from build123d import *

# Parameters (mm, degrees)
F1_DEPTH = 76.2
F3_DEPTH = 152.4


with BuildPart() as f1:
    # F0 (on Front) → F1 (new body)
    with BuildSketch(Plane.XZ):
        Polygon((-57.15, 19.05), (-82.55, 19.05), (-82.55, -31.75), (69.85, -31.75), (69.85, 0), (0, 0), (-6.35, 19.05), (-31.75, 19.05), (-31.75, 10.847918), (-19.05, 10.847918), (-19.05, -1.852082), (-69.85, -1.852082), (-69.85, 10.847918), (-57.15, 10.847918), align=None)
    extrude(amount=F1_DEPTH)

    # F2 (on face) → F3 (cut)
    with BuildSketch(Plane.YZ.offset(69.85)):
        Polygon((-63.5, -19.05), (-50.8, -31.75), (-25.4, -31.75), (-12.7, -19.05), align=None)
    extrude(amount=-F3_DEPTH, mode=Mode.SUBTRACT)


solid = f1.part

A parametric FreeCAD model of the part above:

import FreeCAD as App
import Part
import Sketcher
Q = App.Units.Quantity

doc = App.newDocument("Part")
params = doc.addObject("Spreadsheet::Sheet", "Params")
for row, (alias, value) in enumerate([
    ("sketch1_width", "1 in"),
    ("sketch1_width2", "6 in"),
    ("sketch1_width3", "2 in"),
    ("sketch1_width4", "0.5 in"),
    ("sketch1_width5", "2.75 in"),
    ("pad1_length", "3 in"),
    ("sketch2_width", "1 in"),
    ("sketch2_width2", "2 in"),
    ("pocket1_length", "6 in"),
], start=1):
    params.set(f"A{row}", alias)
    params.set(f"B{row}", "=" + value)
    params.setAlias(f"B{row}", alias)

body = doc.addObject("PartDesign::Body", "Body")

# Sketch on XZ plane
sketch1 = body.newObject("Sketcher::SketchObject", "Sketch")
sketch1.AttachmentSupport = (doc.getObject("XZ_Plane"), [""])
sketch1.MapMode = "FlatFace"
sketch1.addGeometry([
    Part.LineSegment(App.Vector(-57, 19, 0), App.Vector(-83, 19, 0)),  # 0
    Part.LineSegment(App.Vector(-83, 19, 0), App.Vector(-83, -32, 0)),  # 1
    Part.LineSegment(App.Vector(-83, -32, 0), App.Vector(70, -32, 0)),  # 2
    Part.LineSegment(App.Vector(70, -32, 0), App.Vector(70, 0, 0)),  # 3
    Part.LineSegment(App.Vector(70, 0, 0), App.Vector(0, 0, 0)),  # 4
    Part.LineSegment(App.Vector(0, 0, 0), App.Vector(-6, 19, 0)),  # 5
    Part.LineSegment(App.Vector(-6, 19, 0), App.Vector(-32, 19, 0)),  # 6
    Part.LineSegment(App.Vector(-32, 19, 0), App.Vector(-32, 11, 0)),  # 7
    Part.LineSegment(App.Vector(-32, 11, 0), App.Vector(-19, 11, 0)),  # 8
    Part.LineSegment(App.Vector(-19, 11, 0), App.Vector(-19, -2, 0)),  # 9
    Part.LineSegment(App.Vector(-19, -2, 0), App.Vector(-70, -2, 0)),  # 10
    Part.LineSegment(App.Vector(-70, -2, 0), App.Vector(-70, 11, 0)),  # 11
    Part.LineSegment(App.Vector(-70, 11, 0), App.Vector(-57, 11, 0)),  # 12
    Part.LineSegment(App.Vector(-57, 11, 0), App.Vector(-57, 19, 0)),  # 13
], False)
sketch1.addConstraint([
    Sketcher.Constraint("Coincident", 0, 2, 1, 1),
    Sketcher.Constraint("Coincident", 1, 2, 2, 1),
    Sketcher.Constraint("Coincident", 2, 2, 3, 1),
    Sketcher.Constraint("Coincident", 3, 2, 4, 1),
    Sketcher.Constraint("Coincident", 4, 2, 5, 1),
    Sketcher.Constraint("Coincident", 5, 2, 6, 1),
    Sketcher.Constraint("Coincident", 6, 2, 7, 1),
    Sketcher.Constraint("Coincident", 7, 2, 8, 1),
    Sketcher.Constraint("Coincident", 8, 2, 9, 1),
    Sketcher.Constraint("Coincident", 9, 2, 10, 1),
    Sketcher.Constraint("Coincident", 10, 2, 11, 1),
    Sketcher.Constraint("Coincident", 11, 2, 12, 1),
    Sketcher.Constraint("Coincident", 12, 2, 13, 1),
    Sketcher.Constraint("Coincident", 13, 2, 0, 1),
    Sketcher.Constraint("Horizontal", 0),
    Sketcher.Constraint("Vertical", 1),
    Sketcher.Constraint("Horizontal", 2),
    Sketcher.Constraint("Vertical", 3),
    Sketcher.Constraint("Horizontal", 4),
    Sketcher.Constraint("Horizontal", 6),
    Sketcher.Constraint("Vertical", 7),
    Sketcher.Constraint("Horizontal", 8),
    Sketcher.Constraint("Vertical", 9),
    Sketcher.Constraint("Horizontal", 10),
    Sketcher.Constraint("Vertical", 11),
    Sketcher.Constraint("Horizontal", 12),
    Sketcher.Constraint("Vertical", 13),
    Sketcher.Constraint("Coincident", 4, 2, -1, 1),
    Sketcher.Constraint("Horizontal", 0, 2, 5, 2),
    Sketcher.Constraint("Horizontal", 8, 2, 11, 2),
    Sketcher.Constraint("Equal", 0, 6),
    Sketcher.Constraint("Equal", 8, 12),
    Sketcher.Constraint("Equal", 10, 1),
    Sketcher.Constraint("Equal", 12, 9),
    Sketcher.Constraint("DistanceX", 0, 2, 0, 1, Q("1 in")),
    Sketcher.Constraint("DistanceX", 2, 1, 2, 2, Q("6 in")),
    Sketcher.Constraint("DistanceX", 10, 2, 10, 1, Q("2 in")),
    Sketcher.Constraint("DistanceX", 8, 1, 8, 2, Q("0.5 in")),
    Sketcher.Constraint("DistanceX", 4, 2, 4, 1, Q("2.75 in")),
    Sketcher.Constraint("DistanceY", 3, 1, 3, 2, Q("1.25 in")),
    Sketcher.Constraint("DistanceY", 7, 2, 7, 1, 8.202082),
])
sketch1.setExpression("Constraints[34]", "Params.sketch1_width")
sketch1.setExpression("Constraints[35]", "Params.sketch1_width2")
sketch1.setExpression("Constraints[36]", "Params.sketch1_width3")
sketch1.setExpression("Constraints[37]", "Params.sketch1_width4")
sketch1.setExpression("Constraints[38]", "Params.sketch1_width5")
pad1 = body.newObject("PartDesign::Pad", "Pad")
pad1.Profile = sketch1
pad1.setExpression("Length", "Params.pad1_length")

# Sketch on YZ plane
sketch2 = body.newObject("Sketcher::SketchObject", "Sketch001")
sketch2.AttachmentSupport = (doc.getObject("YZ_Plane"), [""])
sketch2.MapMode = "FlatFace"
sketch2.AttachmentOffset = App.Placement(App.Vector(0, 0, 2.75 * 25.4), App.Rotation())
sketch2.addGeometry([
    Part.LineSegment(App.Vector(-64, -19, 0), App.Vector(-51, -32, 0)),
    Part.LineSegment(App.Vector(-51, -32, 0), App.Vector(-25, -32, 0)),
    Part.LineSegment(App.Vector(-25, -32, 0), App.Vector(-13, -19, 0)),
    Part.LineSegment(App.Vector(-13, -19, 0), App.Vector(-64, -19, 0)),
], False)
sketch2.addConstraint([
    Sketcher.Constraint("Coincident", 0, 2, 1, 1),
    Sketcher.Constraint("Coincident", 1, 2, 2, 1),
    Sketcher.Constraint("Coincident", 2, 2, 3, 1),
    Sketcher.Constraint("Coincident", 3, 2, 0, 1),
    Sketcher.Constraint("Horizontal", 1),
    Sketcher.Constraint("Horizontal", 3),
    Sketcher.Constraint("Perpendicular", 0, 2),
    Sketcher.Constraint("Equal", 0, 2),
    Sketcher.Constraint("DistanceX", 1, 1, 1, 2, Q("1 in")),
    Sketcher.Constraint("DistanceX", 3, 2, 3, 1, Q("2 in")),
    Sketcher.Constraint("DistanceX", 0, 2, -1, 1, Q("2 in")),
    Sketcher.Constraint("DistanceY", 0, 2, -1, 1, Q("1.25 in")),
])
sketch2.setExpression("Constraints[8]", "Params.sketch2_width")
sketch2.setExpression("Constraints[9]", "Params.sketch2_width2")
pocket1 = body.newObject("PartDesign::Pocket", "Pocket")
pocket1.Profile = sketch2
pocket1.setExpression("Length", "Params.pocket1_length")

doc.recompute()
